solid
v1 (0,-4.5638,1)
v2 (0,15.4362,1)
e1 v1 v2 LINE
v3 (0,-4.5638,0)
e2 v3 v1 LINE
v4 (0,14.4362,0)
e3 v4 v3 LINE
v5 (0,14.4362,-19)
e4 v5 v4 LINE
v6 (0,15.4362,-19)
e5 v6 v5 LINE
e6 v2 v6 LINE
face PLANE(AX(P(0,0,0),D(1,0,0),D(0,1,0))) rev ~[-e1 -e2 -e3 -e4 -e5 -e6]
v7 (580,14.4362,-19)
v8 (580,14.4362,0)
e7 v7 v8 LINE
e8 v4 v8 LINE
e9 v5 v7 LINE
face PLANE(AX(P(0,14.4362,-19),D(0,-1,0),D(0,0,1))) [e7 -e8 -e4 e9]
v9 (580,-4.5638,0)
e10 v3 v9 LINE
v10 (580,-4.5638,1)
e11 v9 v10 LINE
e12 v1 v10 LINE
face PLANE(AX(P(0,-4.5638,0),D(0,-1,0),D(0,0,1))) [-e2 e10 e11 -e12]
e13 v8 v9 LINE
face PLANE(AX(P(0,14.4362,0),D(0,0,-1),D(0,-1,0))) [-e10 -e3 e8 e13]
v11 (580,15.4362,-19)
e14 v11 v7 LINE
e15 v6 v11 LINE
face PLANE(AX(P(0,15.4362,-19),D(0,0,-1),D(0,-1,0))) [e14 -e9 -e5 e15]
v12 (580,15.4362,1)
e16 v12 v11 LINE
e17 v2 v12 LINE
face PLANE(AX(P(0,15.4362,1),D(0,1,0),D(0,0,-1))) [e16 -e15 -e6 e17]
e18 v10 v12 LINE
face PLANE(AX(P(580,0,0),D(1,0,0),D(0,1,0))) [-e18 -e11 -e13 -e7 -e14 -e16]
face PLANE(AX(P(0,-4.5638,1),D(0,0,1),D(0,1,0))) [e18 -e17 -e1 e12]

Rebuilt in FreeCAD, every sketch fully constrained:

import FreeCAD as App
import Part
import Sketcher

V = App.Vector


def add_polygon(sketch, points):
    """Adds a closed chain of lines whose ends are joined by coincident constraints."""
    first, n = sketch.GeometryCount, len(points)
    for a, b in zip(points, points[1:] + points[:1]):
        sketch.addGeometry(Part.LineSegment(App.Vector(*a, 0), App.Vector(*b, 0)), False)
    for i in range(n):
        sketch.addConstraint(Sketcher.Constraint("Coincident", first + i, 2, first + (i + 1) % n, 1))

doc = App.newDocument("Part")
params = doc.addObject("Spreadsheet::Sheet", "Params")
for row, (alias, value) in enumerate([
    ("sketch1_width", "19 mm"),
    ("sketch1_width2", "1 mm"),
    ("pad1_length", "580 mm"),
], start=1):
    params.set(f"A{row}", alias)
    params.set(f"B{row}", "=" + value)
    params.setAlias(f"B{row}", alias)

body = doc.addObject("PartDesign::Body", "Body")

# Sketch on YZ plane
sketch1 = body.newObject("Sketcher::SketchObject", "Sketch")
sketch1.AttachmentSupport = (doc.getObject("YZ_Plane"), [""])
sketch1.MapMode = "FlatFace"
add_polygon(sketch1, [(-4.5638, 1), (-4.5638, 0), (14.4362, 0), (14.4362, -19), (15.4362, -19), (15.4362, 1)])  # lines 0-5
sketch1.addConstraint(Sketcher.Constraint("Vertical", 0))
sketch1.addConstraint(Sketcher.Constraint("Horizontal", 1))
sketch1.addConstraint(Sketcher.Constraint("Vertical", 2))
sketch1.addConstraint(Sketcher.Constraint("Horizontal", 3))
sketch1.addConstraint(Sketcher.Constraint("Vertical", 4))
sketch1.addConstraint(Sketcher.Constraint("Horizontal", 5))
sketch1.addConstraint(Sketcher.Constraint("PointOnObject", 0, 2, -1))
sketch1.addConstraint(Sketcher.Constraint("Equal", 3, 0))
sketch1.addConstraint(Sketcher.Constraint("Equal", 1, 2))
sketch1.addConstraint(Sketcher.Constraint("DistanceX", 1, 1, 1, 2, 19.0))
sketch1.addConstraint(Sketcher.Constraint("DistanceX", 3, 1, 3, 2, 1.0))
sketch1.addConstraint(Sketcher.Constraint("DistanceX", 0, 2, -1, 1, 4.5638))
sketch1.setExpression("Constraints[15]", "Params.sketch1_width")
sketch1.setExpression("Constraints[16]", "Params.sketch1_width2")
pad1 = body.newObject("PartDesign::Pad", "Pad")
pad1.Profile = sketch1
pad1.setExpression("Length", "Params.pad1_length")

doc.recompute()
